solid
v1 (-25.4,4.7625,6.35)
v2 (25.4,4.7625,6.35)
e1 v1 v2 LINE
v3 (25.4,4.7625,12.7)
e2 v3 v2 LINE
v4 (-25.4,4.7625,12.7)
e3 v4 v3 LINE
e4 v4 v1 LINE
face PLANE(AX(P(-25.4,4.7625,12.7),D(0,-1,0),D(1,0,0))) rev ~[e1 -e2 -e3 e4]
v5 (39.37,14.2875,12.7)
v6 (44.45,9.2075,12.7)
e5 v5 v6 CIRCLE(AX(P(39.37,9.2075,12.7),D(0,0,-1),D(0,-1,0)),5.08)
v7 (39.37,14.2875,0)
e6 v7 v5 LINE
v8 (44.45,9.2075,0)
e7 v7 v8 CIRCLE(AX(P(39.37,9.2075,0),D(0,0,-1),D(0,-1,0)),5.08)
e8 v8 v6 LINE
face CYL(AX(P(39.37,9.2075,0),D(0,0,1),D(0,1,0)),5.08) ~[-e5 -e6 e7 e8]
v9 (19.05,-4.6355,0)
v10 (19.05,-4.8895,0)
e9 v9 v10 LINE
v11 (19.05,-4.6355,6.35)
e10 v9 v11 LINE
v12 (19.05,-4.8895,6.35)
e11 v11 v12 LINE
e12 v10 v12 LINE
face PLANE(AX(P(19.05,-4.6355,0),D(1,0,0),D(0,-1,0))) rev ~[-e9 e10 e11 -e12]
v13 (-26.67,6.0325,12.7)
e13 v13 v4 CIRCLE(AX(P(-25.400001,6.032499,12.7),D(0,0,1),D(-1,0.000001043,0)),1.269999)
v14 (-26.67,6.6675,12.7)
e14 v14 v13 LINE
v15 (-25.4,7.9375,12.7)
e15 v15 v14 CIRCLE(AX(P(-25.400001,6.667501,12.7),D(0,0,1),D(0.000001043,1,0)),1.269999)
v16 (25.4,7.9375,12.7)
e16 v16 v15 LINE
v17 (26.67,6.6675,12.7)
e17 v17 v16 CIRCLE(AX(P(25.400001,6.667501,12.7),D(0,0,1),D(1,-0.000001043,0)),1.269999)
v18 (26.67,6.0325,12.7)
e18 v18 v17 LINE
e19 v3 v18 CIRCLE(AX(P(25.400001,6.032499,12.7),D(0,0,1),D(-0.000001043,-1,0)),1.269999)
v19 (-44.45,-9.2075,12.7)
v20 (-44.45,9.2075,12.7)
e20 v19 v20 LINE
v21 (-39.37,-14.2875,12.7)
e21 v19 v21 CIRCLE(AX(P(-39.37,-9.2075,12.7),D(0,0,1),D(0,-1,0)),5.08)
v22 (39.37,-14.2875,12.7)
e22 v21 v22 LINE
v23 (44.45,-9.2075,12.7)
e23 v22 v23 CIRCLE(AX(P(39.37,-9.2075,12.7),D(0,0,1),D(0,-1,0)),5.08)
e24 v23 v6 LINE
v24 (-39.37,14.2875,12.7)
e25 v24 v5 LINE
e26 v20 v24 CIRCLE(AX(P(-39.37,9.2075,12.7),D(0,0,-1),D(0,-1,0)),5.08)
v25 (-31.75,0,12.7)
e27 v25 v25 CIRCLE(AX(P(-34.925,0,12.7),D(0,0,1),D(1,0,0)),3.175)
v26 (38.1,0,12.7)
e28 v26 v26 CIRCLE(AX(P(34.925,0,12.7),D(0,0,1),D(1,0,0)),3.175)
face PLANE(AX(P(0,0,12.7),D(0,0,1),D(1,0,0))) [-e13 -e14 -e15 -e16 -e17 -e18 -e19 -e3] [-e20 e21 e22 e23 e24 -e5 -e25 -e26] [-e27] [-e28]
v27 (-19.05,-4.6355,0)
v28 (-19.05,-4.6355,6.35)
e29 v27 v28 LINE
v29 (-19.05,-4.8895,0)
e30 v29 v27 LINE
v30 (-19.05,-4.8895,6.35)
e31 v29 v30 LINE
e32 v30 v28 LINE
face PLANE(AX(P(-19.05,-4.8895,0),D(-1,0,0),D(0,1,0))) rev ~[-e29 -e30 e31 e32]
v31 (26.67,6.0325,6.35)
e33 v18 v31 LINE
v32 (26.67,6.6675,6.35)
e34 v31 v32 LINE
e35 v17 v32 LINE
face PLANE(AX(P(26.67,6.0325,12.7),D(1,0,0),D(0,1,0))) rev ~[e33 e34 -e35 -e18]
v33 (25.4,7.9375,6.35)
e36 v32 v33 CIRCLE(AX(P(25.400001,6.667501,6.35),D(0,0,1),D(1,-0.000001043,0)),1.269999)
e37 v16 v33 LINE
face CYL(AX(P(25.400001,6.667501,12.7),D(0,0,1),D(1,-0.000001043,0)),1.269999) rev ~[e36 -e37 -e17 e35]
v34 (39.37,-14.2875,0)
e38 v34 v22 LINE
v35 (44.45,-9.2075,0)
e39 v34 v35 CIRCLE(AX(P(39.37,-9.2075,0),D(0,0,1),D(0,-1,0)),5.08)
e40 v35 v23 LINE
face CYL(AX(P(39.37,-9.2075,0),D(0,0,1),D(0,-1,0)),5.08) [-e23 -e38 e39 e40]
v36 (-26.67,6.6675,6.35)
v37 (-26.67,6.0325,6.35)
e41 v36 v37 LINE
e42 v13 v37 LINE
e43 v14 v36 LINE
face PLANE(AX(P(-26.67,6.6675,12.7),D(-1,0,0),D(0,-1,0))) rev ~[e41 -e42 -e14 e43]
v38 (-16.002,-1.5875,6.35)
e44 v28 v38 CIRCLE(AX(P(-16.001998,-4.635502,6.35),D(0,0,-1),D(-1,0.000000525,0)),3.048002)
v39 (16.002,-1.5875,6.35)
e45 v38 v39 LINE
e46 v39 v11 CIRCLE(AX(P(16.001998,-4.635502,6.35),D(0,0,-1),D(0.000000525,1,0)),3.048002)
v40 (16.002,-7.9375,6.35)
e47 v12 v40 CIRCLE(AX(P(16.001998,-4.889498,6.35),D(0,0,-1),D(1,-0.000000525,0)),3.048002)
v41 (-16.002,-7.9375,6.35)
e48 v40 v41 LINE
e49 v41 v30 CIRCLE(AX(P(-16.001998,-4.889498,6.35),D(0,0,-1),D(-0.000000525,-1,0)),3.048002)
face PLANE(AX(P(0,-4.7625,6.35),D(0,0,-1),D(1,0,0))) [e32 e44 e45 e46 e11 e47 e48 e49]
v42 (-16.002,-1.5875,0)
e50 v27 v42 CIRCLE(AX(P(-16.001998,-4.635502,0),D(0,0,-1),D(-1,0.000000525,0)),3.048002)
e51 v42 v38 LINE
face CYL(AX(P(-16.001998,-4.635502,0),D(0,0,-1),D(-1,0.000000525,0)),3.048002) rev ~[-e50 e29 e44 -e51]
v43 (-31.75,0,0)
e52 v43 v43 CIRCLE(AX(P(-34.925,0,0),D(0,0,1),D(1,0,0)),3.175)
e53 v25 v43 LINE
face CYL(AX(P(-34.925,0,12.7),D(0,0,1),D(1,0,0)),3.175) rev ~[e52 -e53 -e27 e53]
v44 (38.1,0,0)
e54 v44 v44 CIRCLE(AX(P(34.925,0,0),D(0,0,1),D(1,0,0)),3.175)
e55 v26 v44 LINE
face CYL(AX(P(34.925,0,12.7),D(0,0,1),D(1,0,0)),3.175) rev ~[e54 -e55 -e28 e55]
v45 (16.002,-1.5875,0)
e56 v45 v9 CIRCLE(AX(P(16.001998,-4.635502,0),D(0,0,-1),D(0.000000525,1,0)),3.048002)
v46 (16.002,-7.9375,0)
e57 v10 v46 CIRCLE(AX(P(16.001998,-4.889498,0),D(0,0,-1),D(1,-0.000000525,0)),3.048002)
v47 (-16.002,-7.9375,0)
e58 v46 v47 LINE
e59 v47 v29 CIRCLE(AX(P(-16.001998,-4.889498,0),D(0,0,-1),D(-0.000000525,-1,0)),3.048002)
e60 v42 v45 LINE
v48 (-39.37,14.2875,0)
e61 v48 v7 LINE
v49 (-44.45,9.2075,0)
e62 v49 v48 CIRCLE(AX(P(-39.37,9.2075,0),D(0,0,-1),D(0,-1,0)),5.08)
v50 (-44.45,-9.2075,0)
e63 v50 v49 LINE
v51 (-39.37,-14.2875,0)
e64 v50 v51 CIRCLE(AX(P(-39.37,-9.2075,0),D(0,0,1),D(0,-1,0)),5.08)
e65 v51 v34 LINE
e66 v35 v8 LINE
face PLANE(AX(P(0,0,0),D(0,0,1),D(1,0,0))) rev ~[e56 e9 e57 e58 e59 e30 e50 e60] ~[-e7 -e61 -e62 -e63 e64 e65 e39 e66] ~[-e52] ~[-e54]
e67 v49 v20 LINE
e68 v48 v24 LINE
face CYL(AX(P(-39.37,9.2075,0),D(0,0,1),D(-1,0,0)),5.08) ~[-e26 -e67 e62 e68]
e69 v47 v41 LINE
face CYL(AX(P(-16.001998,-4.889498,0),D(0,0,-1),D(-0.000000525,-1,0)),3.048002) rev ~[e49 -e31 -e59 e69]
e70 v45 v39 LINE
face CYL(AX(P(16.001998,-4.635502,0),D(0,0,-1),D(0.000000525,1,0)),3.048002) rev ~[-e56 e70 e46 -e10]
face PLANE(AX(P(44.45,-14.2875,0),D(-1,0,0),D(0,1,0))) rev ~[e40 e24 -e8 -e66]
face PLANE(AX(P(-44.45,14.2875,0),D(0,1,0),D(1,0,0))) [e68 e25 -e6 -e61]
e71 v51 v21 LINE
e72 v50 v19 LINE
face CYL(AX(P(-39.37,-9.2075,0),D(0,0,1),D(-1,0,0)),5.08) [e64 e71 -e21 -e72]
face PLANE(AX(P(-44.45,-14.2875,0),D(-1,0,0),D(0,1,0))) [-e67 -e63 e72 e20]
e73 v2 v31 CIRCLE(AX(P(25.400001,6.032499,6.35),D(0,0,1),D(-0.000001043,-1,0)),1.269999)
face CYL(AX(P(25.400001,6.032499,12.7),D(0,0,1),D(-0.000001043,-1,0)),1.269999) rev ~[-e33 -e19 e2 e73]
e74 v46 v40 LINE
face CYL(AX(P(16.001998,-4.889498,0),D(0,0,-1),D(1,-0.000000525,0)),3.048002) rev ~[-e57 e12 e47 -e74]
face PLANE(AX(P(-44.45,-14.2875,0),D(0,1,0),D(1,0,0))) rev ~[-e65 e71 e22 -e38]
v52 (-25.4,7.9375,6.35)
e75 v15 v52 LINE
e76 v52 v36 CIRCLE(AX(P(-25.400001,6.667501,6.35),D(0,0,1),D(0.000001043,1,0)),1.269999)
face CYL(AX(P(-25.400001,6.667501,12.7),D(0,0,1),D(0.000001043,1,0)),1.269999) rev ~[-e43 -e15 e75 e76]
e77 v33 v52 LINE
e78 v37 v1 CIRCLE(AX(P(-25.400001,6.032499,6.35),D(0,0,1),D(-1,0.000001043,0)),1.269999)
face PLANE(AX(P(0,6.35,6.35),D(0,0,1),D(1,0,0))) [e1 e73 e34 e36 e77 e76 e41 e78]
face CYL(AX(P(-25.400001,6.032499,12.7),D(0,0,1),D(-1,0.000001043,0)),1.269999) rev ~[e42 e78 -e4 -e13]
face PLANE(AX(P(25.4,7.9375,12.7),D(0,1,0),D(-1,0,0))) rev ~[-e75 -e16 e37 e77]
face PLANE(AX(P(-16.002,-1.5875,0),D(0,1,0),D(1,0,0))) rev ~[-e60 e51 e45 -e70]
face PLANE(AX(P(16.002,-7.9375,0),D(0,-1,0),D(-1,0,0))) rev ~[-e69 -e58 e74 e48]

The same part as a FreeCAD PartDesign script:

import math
import FreeCAD as App
import Part
import Sketcher
Q = App.Units.Quantity


def edges_at(feature, points):
    """Names of the edges that pass closest to the given points."""
    edges = feature.Shape.Edges
    near = lambda p: min(range(len(edges)), key=lambda i: edges[i].distToShape(Part.Vertex(*p))[0])
    return sorted({f"Edge{near(p) + 1}" for p in points})


def add_polygon(sketch, points):
    """Adds a closed chain of lines whose ends are joined by coincident constraints."""
    first, n = sketch.GeometryCount, len(points)
    for a, b in zip(points, points[1:] + points[:1]):
        sketch.addGeometry(Part.LineSegment(App.Vector(*a, 0), App.Vector(*b, 0)), False)
    for i in range(n):
        sketch.addConstraint(Sketcher.Constraint("Coincident", first + i, 2, first + (i + 1) % n, 1))

doc = App.newDocument("Part")
params = doc.addObject("Spreadsheet::Sheet", "Params")
for row, (alias, value) in enumerate([
    ("sketch1_width", "3.5 in"),
    ("sketch1_height", "1.125 in"),
    ("pad1_length", "0.5 in"),
    ("sketch2_width", "2 in"),
    ("sketch2_radius", "0.0499999 in"),
    ("sketch2_height", "0.025 in"),
    ("pocket1_length", "0.25 in"),
    ("fillet_radius", "0.2 in"),
    ("sketch3_radius", "0.1200001 in"),
    ("sketch3_width", "1.26 in"),
    ("sketch3_height", "0.01 in"),
    ("pocket2_length", "0.25 in"),
    ("sketch4_diameter", "0.25 in"),
    ("pocket3_length", "1 in"),
], start=1):
    params.set(f"A{row}", alias)
    params.set(f"B{row}", "=" + value)
    params.setAlias(f"B{row}", alias)

body = doc.addObject("PartDesign::Body", "Body")

sketch1 = doc.addObject("Sketcher::SketchObject", "Sketch")
body.addObject(sketch1)
sketch1.AttachmentSupport = (doc.XY_Plane, [""])
sketch1.MapMode = "FlatFace"
add_polygon(sketch1, [(-44, 14), (-44, -14), (44, -14), (44, 14)])
sketch1.addConstraint([
    Sketcher.Constraint("Vertical", 0),
    Sketcher.Constraint("Horizontal", 1),
    Sketcher.Constraint("Vertical", 2),
    Sketcher.Constraint("Horizontal", 3),
    Sketcher.Constraint("Symmetric", 0, 2, 2, 2, -1, 1),
    Sketcher.Constraint("DistanceX", 1, 1, 1, 2, Q("3.5 in")),
    Sketcher.Constraint("DistanceY", 0, 2, 0, 1, Q("1.125 in")),
])
sketch1.setExpression("Constraints[9]", "Params.sketch1_width")
sketch1.setExpression("Constraints[10]", "Params.sketch1_height")
pad1 = doc.addObject("PartDesign::Pad", "Pad")
body.addObject(pad1)
pad1.Profile = sketch1
pad1.setExpression("Length", "Params.pad1_length")

sketch2 = doc.addObject("Sketcher::SketchObject", "Sketch001")
body.addObject(sketch2)
sketch2.AttachmentSupport = (doc.XY_Plane, [""])
sketch2.MapMode = "FlatFace"
sketch2.AttachmentOffset = App.Placement(App.Vector(0, 0, 0.5 * 25.4), App.Rotation())
sketch2.addGeometry([
    Part.LineSegment(App.Vector(25.4, 7.9, 0), App.Vector(-25.4, 7.9, 0)),
    Part.ArcOfCircle(Part.Circle(App.Vector(-25.4, 6.7, 0), App.Vector(0, 0, 1), 1.3), math.radians(90), math.radians(180)),
    Part.LineSegment(App.Vector(-26.7, 6.7, 0), App.Vector(-26.7, 6, 0)),
    Part.ArcOfCircle(Part.Circle(App.Vector(-25.4, 6, 0), App.Vector(0, 0, 1), 1.3), math.radians(180), math.radians(270)),
    Part.LineSegment(App.Vector(-25.4, 4.8, 0), App.Vector(25.4, 4.8, 0)),
    Part.ArcOfCircle(Part.Circle(App.Vector(25.4, 6, 0), App.Vector(0, 0, 1), 1.3), math.radians(-90), math.radians(0)),
    Part.LineSegment(App.Vector(26.7, 6, 0), App.Vector(26.7, 6.7, 0)),
    Part.ArcOfCircle(Part.Circle(App.Vector(25.4, 6.7, 0), App.Vector(0, 0, 1), 1.3), math.radians(0), math.radians(90)),
], False)
sketch2.addConstraint([
    Sketcher.Constraint("Tangent", 0, 2, 1, 1),
    Sketcher.Constraint("Tangent", 1, 2, 2, 1),
    Sketcher.Constraint("Tangent", 2, 2, 3, 1),
    Sketcher.Constraint("Tangent", 3, 2, 4, 1),
    Sketcher.Constraint("Tangent", 4, 2, 5, 1),
    Sketcher.Constraint("Tangent", 5, 2, 6, 1),
    Sketcher.Constraint("Tangent", 6, 2, 7, 1),
    Sketcher.Constraint("Tangent", 7, 2, 0, 1),
    Sketcher.Constraint("Horizontal", 0),
    Sketcher.Constraint("Vertical", 2),
    Sketcher.Constraint("Horizontal", 4),
    Sketcher.Constraint("Vertical", 6),
    Sketcher.Constraint("Equal", 1, 3),
    Sketcher.Constraint("Equal", 3, 5),
    Sketcher.Constraint("Equal", 5, 7),
    Sketcher.Constraint("DistanceX", 0, 2, 0, 1, Q("2 in")),
    Sketcher.Constraint("Radius", 1, Q("0.0499999 in")),
    Sketcher.Constraint("DistanceX", 1, 3, -1, 1, Q("1.0000001 in")),
    Sketcher.Constraint("DistanceY", 2, 2, 2, 1, Q("0.025 in")),
    Sketcher.Constraint("DistanceY", -1, 1, 0, 2, Q("0.3125 in")),
])
sketch2.setExpression("Constraints[15]", "Params.sketch2_width")
sketch2.setExpression("Constraints[16]", "Params.sketch2_radius")
sketch2.setExpression("Constraints[18]", "Params.sketch2_height")
pocket1 = doc.addObject("PartDesign::Pocket", "Pocket")
body.addObject(pocket1)
pocket1.Profile = sketch2
pocket1.setExpression("Length", "Params.pocket1_length")
doc.recompute()

fillet = doc.addObject("PartDesign::Fillet", "Fillet")
body.addObject(fillet)
fillet.Base = (pocket1, edges_at(pocket1, [
    (44.45, -14.287, 6.35),
    (44.45, 14.287, 6.35),
    (-44.45, -14.287, 6.35),
    (-44.45, 14.287, 6.35),
]))
fillet.setExpression("Radius", "Params.fillet_radius")

sketch3 = doc.addObject("Sketcher::SketchObject", "Sketch002")
body.addObject(sketch3)
sketch3.AttachmentSupport = (doc.XY_Plane, [""])
sketch3.MapMode = "FlatFace"
sketch3.addGeometry([
    Part.LineSegment(App.Vector(16, -7.94, 0), App.Vector(-16, -7.94, 0)),
    Part.ArcOfCircle(Part.Circle(App.Vector(-16, -4.89, 0), App.Vector(0, 0, 1), 3.05), math.radians(-180), math.radians(-90)),
    Part.LineSegment(App.Vector(-19.05, -4.89, 0), App.Vector(-19.05, -4.64, 0)),
    Part.ArcOfCircle(Part.Circle(App.Vector(-16, -4.64, 0), App.Vector(0, 0, 1), 3.05), math.radians(90), math.radians(180)),
    Part.LineSegment(App.Vector(-16, -1.59, 0), App.Vector(16, -1.59, 0)),
    Part.ArcOfCircle(Part.Circle(App.Vector(16, -4.64, 0), App.Vector(0, 0, 1), 3.05), math.radians(0), math.radians(90)),
    Part.LineSegment(App.Vector(19.05, -4.64, 0), App.Vector(19.05, -4.89, 0)),
    Part.ArcOfCircle(Part.Circle(App.Vector(16, -4.89, 0), App.Vector(0, 0, 1), 3.05), math.radians(-90), math.radians(0)),
], False)
sketch3.addConstraint([
    Sketcher.Constraint("Tangent", 0, 2, 1, 2),
    Sketcher.Constraint("Tangent", 1, 1, 2, 1),
    Sketcher.Constraint("Tangent", 2, 2, 3, 2),
    Sketcher.Constraint("Tangent", 3, 1, 4, 1),
    Sketcher.Constraint("Tangent", 4, 2, 5, 2),
    Sketcher.Constraint("Tangent", 5, 1, 6, 1),
    Sketcher.Constraint("Tangent", 6, 2, 7, 2),
    Sketcher.Constraint("Tangent", 7, 1, 0, 1),
    Sketcher.Constraint("Horizontal", 0),
    Sketcher.Constraint("Vertical", 2),
    Sketcher.Constraint("Horizontal", 4),
    Sketcher.Constraint("Vertical", 6),
    Sketcher.Constraint("Equal", 1, 3),
    Sketcher.Constraint("Equal", 3, 5),
    Sketcher.Constraint("Equal", 5, 7),
    Sketcher.Constraint("Radius", 1, Q("0.1200001 in")),
    Sketcher.Constraint("DistanceX", 0, 2, 0, 1, Q("1.26 in")),
    Sketcher.Constraint("DistanceY", 2, 1, 2, 2, Q("0.01 in")),
    Sketcher.Constraint("DistanceX", 1, 3, -1, 1, Q("0.6299999 in")),
    Sketcher.Constraint("DistanceY", 0, 2, -1, 1, Q("0.3125 in")),
])
sketch3.setExpression("Constraints[15]", "Params.sketch3_radius")
sketch3.setExpression("Constraints[16]", "Params.sketch3_width")
sketch3.setExpression("Constraints[17]", "Params.sketch3_height")
pocket2 = doc.addObject("PartDesign::Pocket", "Pocket001")
body.addObject(pocket2)
pocket2.Profile = sketch3
pocket2.setExpression("Length", "Params.pocket2_length")
pocket2.Reversed = True

sketch4 = doc.addObject("Sketcher::SketchObject", "Sketch003")
body.addObject(sketch4)
sketch4.AttachmentSupport = (doc.XY_Plane, [""])
sketch4.MapMode = "FlatFace"
sketch4.AttachmentOffset = App.Placement(App.Vector(0, 0, 0.5 * 25.4), App.Rotation())
sketch4.addGeometry([
    Part.Circle(App.Vector(-34.9, 0, 0), App.Vector(0, 0, 1), 3.2),
    Part.Circle(App.Vector(34.9, 0, 0), App.Vector(0, 0, 1), 3.2),
], False)
sketch4.addConstraint([
    Sketcher.Constraint("Equal", 0, 1),
    Sketcher.Constraint("Symmetric", 0, 3, 1, 3, -1, 1),
    Sketcher.Constraint("PointOnObject", 0, 3, -1),
    Sketcher.Constraint("Diameter", 0, Q("0.25 in")),
    Sketcher.Constraint("DistanceX", 0, 3, 1, 3, Q("2.75 in")),
])
sketch4.setExpression("Constraints[3]", "Params.sketch4_diameter")
pocket3 = doc.addObject("PartDesign::Pocket", "Pocket002")
body.addObject(pocket3)
pocket3.Profile = sketch4
pocket3.setExpression("Length", "Params.pocket3_length")

doc.recompute()
